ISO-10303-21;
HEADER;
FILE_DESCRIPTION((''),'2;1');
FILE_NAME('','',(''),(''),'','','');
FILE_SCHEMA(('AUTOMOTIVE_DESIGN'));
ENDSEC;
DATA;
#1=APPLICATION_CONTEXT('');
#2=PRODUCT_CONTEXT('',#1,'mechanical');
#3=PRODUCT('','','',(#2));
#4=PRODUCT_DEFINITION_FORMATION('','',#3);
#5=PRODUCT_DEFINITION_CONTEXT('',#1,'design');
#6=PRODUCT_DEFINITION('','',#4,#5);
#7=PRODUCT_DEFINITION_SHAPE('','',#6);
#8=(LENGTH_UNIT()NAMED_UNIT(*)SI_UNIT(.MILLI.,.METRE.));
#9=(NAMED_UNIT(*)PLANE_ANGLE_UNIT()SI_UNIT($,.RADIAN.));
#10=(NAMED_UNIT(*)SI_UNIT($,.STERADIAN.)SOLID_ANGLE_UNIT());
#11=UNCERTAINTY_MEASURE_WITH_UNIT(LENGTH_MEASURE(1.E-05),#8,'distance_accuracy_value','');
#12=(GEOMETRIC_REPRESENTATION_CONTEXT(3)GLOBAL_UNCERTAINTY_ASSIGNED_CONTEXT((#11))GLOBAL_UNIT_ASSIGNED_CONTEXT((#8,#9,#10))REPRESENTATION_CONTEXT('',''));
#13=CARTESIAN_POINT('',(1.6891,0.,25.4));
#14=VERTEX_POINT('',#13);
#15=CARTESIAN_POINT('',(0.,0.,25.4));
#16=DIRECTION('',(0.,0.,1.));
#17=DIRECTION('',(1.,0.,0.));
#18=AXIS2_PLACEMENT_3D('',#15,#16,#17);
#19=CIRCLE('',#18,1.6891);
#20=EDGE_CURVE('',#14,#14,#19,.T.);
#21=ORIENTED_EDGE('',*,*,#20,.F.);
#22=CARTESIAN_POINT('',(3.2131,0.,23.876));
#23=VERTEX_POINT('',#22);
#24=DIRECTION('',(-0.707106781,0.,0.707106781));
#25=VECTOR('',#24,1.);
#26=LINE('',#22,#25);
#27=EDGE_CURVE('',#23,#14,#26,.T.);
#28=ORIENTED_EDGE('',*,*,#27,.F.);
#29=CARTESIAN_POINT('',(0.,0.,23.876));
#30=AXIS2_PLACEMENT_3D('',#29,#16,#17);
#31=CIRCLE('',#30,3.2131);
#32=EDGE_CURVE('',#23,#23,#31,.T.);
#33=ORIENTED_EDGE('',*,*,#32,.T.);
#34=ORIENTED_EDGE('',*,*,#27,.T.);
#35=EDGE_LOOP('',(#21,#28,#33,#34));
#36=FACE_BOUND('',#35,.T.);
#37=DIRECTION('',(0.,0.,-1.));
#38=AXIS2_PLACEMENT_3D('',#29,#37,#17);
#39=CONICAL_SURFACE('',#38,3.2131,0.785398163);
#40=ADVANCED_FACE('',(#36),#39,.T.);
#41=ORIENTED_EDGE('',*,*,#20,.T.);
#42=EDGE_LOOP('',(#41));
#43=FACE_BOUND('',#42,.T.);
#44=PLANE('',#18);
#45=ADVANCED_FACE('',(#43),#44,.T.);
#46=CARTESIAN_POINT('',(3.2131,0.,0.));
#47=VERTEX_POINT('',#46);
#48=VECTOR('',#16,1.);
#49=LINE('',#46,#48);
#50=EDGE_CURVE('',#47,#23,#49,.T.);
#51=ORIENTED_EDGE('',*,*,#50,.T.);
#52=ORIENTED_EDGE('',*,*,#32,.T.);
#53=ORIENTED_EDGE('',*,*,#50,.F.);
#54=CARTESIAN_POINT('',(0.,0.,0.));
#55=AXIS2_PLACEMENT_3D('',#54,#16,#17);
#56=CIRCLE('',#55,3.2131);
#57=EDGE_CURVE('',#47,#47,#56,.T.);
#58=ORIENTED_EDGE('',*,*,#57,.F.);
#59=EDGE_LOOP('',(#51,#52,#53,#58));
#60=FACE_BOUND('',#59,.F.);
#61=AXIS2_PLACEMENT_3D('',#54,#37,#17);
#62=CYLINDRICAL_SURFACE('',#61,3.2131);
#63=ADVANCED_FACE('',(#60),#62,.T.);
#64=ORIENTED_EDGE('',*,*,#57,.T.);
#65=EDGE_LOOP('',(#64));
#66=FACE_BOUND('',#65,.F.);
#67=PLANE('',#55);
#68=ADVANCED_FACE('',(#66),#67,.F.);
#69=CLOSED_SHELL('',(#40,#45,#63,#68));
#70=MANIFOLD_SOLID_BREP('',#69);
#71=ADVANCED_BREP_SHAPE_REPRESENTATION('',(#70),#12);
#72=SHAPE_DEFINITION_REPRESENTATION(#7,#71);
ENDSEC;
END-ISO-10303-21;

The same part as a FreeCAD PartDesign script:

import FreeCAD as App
import Part
import Sketcher
from FreeCAD import Vector
Q = App.Units.Quantity


def edges_at(feature, points):
    """Names of the edges that pass closest to the given points."""
    edges = feature.Shape.Edges
    near = lambda p: min(range(len(edges)), key=lambda i: edges[i].distToShape(Part.Vertex(*p))[0])
    return sorted({f"Edge{near(p) + 1}" for p in points})

doc = App.newDocument("Part")
body = doc.addObject("PartDesign::Body", "Body")

# Sketch on XY plane
sketch1 = body.newObject("Sketcher::SketchObject", "Sketch")
sketch1.AttachmentSupport = (doc.getObject("XY_Plane"), [""])
sketch1.MapMode = "FlatFace"
sketch1.addGeometry(Part.Circle(Vector(0, 0, 0), Vector(0, 0, 1), 3.2), False)
sketch1.addConstraint(Sketcher.Constraint("Coincident", 0, 3, -1, 1))
sketch1.addConstraint(Sketcher.Constraint("Diameter", 0, Q("0.253 in")))
pad1 = body.newObject("PartDesign::Pad", "Pad")
pad1.Profile = sketch1
pad1.Length = Q("1 in")
doc.recompute()

chamfer = body.newObject("PartDesign::Chamfer", "Chamfer")
chamfer.Base = (pad1, edges_at(pad1, [(-3.213, 0, 25.4)]))
chamfer.Size = Q("0.06 in")

doc.recompute()
